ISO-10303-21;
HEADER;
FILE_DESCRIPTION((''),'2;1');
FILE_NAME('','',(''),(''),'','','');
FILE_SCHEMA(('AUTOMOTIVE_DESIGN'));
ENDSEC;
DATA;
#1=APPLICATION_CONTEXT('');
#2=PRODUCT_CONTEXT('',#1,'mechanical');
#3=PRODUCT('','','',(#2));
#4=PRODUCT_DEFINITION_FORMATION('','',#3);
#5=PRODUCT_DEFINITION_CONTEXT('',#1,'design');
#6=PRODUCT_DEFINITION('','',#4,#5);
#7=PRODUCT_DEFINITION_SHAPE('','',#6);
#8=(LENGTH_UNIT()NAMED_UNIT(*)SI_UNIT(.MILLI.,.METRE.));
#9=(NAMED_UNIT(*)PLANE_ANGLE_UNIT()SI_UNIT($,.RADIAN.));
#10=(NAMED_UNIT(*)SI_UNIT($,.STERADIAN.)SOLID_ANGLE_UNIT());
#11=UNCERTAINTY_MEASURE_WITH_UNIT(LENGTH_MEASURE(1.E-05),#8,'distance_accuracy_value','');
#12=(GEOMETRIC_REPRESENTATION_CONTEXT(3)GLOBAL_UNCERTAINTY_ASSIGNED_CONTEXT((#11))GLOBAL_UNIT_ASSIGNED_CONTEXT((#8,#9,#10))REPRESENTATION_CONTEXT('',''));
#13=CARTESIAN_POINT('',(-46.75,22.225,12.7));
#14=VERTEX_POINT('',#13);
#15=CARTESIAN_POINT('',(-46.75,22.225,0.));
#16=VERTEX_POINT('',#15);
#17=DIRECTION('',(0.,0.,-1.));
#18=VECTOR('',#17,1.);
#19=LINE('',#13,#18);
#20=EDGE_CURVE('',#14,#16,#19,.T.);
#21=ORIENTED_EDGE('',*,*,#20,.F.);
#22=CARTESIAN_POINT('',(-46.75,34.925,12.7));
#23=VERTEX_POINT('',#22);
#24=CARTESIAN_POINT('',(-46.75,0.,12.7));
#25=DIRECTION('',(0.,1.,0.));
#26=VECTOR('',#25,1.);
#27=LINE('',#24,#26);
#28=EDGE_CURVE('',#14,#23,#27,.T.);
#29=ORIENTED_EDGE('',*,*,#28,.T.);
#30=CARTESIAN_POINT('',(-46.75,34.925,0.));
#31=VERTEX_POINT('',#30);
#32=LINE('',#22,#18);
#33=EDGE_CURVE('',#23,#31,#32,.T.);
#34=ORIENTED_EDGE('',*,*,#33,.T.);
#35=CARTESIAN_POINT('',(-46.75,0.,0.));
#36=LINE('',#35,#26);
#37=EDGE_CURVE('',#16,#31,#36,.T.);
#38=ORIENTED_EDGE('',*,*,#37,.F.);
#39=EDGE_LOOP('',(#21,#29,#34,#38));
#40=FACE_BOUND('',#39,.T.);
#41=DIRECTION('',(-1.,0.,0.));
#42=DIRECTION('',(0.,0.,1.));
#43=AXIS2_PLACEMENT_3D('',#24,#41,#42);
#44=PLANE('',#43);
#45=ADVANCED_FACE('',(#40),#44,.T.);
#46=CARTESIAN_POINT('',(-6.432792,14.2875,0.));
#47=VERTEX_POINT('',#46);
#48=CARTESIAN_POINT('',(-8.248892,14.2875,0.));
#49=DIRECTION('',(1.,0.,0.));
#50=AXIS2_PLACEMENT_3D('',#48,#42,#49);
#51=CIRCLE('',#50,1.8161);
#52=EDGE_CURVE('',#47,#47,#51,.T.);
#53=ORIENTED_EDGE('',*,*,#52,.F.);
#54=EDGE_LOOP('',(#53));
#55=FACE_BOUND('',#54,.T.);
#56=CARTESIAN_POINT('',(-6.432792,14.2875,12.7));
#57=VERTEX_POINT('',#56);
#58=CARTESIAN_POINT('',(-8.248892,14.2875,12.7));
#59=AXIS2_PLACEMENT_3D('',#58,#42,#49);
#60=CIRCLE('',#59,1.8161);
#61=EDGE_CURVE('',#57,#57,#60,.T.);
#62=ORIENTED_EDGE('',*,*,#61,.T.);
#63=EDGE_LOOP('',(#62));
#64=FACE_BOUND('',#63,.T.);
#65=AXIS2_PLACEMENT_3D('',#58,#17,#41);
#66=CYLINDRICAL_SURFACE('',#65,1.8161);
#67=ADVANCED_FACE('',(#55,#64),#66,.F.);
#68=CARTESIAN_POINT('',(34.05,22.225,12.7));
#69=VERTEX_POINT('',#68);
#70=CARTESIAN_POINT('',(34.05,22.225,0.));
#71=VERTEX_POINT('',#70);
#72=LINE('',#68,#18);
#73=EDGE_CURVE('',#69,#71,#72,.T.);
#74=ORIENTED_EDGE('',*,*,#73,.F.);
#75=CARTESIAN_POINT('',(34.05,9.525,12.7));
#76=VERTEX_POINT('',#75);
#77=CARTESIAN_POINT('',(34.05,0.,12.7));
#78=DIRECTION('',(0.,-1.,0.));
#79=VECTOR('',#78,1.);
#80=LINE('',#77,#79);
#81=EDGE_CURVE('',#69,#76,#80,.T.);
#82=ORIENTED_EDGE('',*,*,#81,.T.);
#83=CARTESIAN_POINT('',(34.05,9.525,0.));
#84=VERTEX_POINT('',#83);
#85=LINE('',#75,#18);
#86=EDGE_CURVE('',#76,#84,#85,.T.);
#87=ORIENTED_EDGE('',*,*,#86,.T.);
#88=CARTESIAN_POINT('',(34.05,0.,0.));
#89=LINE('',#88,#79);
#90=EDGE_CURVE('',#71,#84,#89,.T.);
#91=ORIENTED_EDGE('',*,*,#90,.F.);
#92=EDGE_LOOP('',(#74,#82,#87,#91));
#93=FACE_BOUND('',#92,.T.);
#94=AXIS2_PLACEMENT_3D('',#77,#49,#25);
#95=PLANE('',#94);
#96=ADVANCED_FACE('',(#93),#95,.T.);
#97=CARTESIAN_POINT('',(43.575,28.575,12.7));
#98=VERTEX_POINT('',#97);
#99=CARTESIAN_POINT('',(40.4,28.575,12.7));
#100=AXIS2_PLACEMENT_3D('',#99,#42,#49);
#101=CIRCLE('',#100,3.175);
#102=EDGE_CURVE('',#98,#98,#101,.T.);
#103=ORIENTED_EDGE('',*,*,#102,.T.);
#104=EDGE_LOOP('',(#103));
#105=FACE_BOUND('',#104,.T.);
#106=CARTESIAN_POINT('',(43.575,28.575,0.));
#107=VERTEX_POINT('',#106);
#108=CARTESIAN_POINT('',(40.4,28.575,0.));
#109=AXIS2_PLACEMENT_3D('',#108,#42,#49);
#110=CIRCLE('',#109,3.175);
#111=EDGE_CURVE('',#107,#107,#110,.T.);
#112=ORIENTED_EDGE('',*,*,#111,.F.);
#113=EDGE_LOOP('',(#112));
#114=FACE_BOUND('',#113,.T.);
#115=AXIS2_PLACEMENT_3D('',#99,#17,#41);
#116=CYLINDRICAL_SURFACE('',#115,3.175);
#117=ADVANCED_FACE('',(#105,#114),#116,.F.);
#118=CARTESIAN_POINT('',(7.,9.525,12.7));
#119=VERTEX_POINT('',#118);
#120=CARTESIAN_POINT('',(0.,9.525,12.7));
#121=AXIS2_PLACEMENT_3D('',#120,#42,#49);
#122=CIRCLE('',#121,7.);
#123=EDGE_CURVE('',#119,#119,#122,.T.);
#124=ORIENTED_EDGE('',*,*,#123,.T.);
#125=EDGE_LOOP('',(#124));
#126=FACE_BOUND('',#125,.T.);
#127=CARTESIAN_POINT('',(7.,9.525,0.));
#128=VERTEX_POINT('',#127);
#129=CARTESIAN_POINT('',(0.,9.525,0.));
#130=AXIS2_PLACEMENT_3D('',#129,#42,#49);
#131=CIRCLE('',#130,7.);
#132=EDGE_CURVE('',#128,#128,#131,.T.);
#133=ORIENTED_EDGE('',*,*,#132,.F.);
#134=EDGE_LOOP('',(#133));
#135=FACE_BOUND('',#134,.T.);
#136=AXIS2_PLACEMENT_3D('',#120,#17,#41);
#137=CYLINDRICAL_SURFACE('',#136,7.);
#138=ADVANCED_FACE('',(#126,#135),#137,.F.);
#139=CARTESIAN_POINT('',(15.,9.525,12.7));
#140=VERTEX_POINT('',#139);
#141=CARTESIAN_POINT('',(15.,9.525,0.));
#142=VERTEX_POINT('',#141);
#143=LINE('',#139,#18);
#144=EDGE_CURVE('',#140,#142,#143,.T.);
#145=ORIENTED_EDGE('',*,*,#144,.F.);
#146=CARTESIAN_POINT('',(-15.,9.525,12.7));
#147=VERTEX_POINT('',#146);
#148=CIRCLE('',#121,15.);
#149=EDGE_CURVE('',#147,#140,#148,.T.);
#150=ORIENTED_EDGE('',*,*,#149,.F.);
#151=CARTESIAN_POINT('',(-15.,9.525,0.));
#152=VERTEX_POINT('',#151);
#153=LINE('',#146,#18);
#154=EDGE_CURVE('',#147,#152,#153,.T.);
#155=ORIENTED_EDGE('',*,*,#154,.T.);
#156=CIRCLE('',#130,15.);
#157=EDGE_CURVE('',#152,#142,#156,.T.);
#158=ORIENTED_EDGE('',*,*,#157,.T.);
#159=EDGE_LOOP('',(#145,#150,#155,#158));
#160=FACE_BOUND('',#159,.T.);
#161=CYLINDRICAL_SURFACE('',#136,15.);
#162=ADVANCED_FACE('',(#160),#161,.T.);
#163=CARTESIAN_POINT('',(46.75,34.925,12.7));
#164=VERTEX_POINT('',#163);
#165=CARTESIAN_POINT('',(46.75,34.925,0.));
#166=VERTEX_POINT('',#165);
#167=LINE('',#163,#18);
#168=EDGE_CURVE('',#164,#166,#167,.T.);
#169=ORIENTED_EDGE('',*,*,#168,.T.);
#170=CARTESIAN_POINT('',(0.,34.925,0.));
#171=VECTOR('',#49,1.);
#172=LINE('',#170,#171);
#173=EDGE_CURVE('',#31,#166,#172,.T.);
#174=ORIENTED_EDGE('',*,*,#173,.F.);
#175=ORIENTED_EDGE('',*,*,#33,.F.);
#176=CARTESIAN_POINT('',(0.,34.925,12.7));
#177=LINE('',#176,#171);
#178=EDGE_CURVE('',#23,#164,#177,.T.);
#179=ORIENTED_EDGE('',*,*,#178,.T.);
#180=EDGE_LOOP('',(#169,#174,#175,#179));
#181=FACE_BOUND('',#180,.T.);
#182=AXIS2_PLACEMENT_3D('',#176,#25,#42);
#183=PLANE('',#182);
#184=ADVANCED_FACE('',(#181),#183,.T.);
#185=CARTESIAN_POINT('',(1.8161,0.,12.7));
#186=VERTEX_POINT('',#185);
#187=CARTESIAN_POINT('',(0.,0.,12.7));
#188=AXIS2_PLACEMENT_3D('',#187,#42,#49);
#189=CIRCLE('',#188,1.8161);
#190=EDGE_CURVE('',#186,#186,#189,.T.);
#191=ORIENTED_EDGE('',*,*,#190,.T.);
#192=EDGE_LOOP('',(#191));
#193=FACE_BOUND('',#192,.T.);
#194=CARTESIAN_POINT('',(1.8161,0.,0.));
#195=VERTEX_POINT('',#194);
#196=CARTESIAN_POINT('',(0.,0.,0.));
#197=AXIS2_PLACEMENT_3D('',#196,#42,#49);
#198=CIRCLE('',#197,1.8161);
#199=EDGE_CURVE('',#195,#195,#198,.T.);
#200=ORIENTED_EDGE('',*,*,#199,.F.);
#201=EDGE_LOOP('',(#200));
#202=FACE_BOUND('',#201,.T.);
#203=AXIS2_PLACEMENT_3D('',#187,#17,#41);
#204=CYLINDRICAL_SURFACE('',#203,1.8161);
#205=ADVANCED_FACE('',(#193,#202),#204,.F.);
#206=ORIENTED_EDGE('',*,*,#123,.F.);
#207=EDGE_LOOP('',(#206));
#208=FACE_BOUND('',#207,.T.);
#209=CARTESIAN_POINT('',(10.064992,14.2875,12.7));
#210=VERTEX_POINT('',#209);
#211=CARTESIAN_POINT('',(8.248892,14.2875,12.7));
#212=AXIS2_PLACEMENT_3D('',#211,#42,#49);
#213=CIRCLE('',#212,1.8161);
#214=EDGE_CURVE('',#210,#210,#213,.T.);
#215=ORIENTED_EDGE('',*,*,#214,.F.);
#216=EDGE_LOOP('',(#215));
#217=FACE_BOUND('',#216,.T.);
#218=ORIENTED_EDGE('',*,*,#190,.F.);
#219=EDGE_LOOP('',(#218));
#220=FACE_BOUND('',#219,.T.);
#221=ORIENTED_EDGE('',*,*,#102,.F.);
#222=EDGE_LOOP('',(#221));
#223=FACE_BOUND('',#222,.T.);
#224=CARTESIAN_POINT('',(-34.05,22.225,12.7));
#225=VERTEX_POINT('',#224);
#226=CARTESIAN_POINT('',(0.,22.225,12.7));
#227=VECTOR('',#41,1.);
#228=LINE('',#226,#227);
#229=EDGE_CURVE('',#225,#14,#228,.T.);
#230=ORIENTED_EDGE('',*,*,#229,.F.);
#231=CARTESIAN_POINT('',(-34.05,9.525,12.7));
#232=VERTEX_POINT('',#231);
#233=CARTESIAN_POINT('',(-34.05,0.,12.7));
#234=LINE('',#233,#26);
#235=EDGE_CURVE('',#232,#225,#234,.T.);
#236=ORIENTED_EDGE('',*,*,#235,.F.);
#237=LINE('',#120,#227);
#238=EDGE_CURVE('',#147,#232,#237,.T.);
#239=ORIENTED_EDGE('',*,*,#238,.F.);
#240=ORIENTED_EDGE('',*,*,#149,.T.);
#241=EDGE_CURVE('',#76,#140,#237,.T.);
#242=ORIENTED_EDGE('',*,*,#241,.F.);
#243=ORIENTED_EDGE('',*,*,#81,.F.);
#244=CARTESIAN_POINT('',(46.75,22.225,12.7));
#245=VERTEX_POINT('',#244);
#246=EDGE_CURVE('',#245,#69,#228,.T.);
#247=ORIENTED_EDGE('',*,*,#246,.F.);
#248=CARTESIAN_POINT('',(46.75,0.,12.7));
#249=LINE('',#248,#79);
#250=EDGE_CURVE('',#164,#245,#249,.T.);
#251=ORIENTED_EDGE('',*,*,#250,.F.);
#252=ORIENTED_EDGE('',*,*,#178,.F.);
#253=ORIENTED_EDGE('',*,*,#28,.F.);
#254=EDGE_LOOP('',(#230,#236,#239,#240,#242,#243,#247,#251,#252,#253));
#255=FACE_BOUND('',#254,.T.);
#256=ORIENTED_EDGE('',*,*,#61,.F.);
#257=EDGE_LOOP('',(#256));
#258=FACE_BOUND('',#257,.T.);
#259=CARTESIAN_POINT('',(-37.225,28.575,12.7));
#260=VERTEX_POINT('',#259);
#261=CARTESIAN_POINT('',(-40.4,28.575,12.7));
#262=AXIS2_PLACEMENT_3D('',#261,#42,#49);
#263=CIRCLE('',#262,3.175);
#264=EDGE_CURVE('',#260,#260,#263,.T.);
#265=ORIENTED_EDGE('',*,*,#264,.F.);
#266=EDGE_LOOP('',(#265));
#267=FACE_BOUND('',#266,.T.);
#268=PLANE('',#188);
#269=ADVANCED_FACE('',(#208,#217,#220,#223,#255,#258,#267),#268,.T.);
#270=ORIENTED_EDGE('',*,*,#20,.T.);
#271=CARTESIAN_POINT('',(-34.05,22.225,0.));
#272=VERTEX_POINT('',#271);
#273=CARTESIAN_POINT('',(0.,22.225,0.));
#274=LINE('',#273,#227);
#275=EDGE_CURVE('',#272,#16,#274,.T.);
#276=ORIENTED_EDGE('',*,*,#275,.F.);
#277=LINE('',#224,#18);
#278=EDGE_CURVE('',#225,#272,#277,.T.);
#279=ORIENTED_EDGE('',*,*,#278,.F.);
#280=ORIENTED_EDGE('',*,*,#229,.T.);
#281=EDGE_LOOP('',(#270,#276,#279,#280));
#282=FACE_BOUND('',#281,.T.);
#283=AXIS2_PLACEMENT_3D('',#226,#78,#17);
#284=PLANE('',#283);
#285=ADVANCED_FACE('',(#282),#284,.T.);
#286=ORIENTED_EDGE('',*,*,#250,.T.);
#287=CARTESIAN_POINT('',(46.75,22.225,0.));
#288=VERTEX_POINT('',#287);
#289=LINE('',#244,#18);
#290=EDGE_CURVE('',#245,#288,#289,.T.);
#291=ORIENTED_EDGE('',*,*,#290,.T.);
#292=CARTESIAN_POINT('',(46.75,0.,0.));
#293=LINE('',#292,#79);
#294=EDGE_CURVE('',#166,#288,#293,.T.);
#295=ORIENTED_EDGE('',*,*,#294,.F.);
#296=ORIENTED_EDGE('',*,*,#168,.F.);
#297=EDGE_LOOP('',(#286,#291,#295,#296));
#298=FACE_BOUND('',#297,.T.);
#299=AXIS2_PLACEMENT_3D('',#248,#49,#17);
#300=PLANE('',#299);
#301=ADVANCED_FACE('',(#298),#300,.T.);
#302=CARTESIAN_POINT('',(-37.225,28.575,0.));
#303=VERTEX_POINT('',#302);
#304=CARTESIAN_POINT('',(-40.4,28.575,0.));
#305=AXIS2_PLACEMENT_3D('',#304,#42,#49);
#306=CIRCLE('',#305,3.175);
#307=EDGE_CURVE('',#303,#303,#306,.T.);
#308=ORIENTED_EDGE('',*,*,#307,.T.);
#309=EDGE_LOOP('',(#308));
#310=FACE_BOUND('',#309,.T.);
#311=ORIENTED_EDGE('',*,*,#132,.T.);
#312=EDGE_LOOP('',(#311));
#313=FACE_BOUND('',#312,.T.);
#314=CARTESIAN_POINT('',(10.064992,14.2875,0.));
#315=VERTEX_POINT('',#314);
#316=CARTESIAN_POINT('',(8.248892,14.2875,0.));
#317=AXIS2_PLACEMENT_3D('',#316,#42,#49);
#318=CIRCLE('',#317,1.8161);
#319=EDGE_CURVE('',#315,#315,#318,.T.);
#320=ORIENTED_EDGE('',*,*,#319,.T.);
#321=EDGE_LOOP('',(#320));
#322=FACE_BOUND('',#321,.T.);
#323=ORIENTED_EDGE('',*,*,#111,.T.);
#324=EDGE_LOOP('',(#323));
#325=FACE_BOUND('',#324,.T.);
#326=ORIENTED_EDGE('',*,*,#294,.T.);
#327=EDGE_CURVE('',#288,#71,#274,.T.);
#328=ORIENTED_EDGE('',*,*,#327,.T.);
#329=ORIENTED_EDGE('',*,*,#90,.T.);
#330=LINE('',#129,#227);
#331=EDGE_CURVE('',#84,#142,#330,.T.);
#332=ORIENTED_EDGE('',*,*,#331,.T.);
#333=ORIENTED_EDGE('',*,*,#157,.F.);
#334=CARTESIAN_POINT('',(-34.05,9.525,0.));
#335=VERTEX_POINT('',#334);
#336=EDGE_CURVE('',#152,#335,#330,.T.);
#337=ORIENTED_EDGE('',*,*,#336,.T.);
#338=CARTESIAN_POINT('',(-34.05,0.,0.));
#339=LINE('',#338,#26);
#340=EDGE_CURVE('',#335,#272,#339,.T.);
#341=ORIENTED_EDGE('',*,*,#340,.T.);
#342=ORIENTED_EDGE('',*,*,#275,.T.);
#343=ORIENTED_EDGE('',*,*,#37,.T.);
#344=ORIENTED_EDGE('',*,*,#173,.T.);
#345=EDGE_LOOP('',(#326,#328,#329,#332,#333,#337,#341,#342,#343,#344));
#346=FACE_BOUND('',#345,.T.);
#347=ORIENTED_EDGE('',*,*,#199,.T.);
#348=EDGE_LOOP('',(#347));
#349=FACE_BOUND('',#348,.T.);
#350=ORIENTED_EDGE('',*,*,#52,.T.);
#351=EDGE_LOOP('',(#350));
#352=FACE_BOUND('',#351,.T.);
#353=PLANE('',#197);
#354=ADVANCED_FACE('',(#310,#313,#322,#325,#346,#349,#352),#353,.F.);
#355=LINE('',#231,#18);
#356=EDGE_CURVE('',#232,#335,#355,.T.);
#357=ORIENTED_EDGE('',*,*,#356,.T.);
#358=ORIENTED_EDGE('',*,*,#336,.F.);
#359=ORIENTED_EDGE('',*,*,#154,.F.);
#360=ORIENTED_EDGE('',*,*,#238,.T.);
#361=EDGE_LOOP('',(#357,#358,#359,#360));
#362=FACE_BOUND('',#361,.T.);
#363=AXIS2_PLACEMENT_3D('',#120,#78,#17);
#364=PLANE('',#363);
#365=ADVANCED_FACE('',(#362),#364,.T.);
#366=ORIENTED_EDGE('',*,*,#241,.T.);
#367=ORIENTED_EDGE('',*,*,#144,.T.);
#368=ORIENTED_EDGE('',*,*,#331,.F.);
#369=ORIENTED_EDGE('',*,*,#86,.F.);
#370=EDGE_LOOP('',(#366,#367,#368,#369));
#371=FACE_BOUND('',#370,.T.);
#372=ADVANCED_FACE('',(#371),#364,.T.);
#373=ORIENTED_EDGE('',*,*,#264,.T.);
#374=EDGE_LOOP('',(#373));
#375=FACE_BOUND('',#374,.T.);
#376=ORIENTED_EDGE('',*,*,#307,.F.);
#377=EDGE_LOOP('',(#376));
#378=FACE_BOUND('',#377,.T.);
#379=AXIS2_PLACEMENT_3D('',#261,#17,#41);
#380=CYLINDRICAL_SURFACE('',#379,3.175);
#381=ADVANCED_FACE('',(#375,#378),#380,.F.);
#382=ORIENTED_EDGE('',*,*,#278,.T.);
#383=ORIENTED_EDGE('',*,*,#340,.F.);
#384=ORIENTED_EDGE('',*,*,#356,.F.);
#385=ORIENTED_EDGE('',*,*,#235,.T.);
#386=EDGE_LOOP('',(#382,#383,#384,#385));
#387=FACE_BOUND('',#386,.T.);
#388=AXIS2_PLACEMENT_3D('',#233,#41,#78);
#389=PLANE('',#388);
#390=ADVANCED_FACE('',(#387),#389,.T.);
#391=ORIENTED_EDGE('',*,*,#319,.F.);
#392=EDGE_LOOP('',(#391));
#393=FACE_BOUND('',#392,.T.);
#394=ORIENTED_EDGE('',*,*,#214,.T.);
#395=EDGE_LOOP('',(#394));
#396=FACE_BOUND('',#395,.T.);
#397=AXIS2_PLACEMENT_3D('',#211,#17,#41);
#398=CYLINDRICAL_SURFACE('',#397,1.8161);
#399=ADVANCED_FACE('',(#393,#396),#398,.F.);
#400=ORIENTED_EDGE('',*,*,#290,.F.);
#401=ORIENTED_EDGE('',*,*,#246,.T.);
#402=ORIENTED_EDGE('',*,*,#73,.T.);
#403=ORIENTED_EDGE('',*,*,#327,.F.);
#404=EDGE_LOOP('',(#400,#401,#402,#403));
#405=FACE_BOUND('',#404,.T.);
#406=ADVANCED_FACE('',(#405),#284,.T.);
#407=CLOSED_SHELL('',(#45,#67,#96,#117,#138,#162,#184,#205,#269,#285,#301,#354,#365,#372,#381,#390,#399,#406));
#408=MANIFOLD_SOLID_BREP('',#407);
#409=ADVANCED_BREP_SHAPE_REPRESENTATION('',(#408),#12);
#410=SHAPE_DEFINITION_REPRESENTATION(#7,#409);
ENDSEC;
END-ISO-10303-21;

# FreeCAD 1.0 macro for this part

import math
import FreeCAD as App
import Part
import Sketcher
Q = App.Units.Quantity

doc = App.newDocument("Part")
body = doc.addObject("PartDesign::Body", "Body")

# Sketch on XY plane
sketch1 = doc.addObject("Sketcher::SketchObject", "Sketch")
body.addObject(sketch1)
sketch1.AttachmentSupport = (doc.XY_Plane, [""])
sketch1.MapMode = "FlatFace"
sketch1.addGeometry([
    Part.LineSegment(App.Vector(-34.05, 9.525, 0), App.Vector(-15, 9.525, 0)),  # 0
    Part.ArcOfCircle(Part.Circle(App.Vector(0, 9.525, 0), App.Vector(0, 0, 1), 15), math.radians(180), math.radians(360)),  # 1
    Part.LineSegment(App.Vector(15, 9.525, 0), App.Vector(34.05, 9.525, 0)),  # 2
    Part.LineSegment(App.Vector(34.05, 9.525, 0), App.Vector(34.05, 22.225, 0)),  # 3
    Part.LineSegment(App.Vector(34.05, 22.225, 0), App.Vector(46.75, 22.225, 0)),  # 4
    Part.LineSegment(App.Vector(46.75, 22.225, 0), App.Vector(46.75, 34.925, 0)),  # 5
    Part.LineSegment(App.Vector(46.75, 34.925, 0), App.Vector(-46.75, 34.925, 0)),  # 6
    Part.LineSegment(App.Vector(-46.75, 34.925, 0), App.Vector(-46.75, 22.225, 0)),  # 7
    Part.LineSegment(App.Vector(-46.75, 22.225, 0), App.Vector(-34.05, 22.225, 0)),  # 8
    Part.LineSegment(App.Vector(-34.05, 22.225, 0), App.Vector(-34.05, 9.525, 0)),  # 9
    Part.Circle(App.Vector(-8.248892, 14.2875, 0), App.Vector(0, 0, 1), 1.8161),  # 10
    Part.Circle(App.Vector(0, 0, 0), App.Vector(0, 0, 1), 1.8161),  # 11
    Part.Circle(App.Vector(0, 9.525, 0), App.Vector(0, 0, 1), 7),  # 12
    Part.Circle(App.Vector(8.248892, 14.2875, 0), App.Vector(0, 0, 1), 1.8161),  # 13
    Part.Circle(App.Vector(-40.4, 28.575, 0), App.Vector(0, 0, 1), 3.175),  # 14
    Part.Circle(App.Vector(40.4, 28.575, 0), App.Vector(0, 0, 1), 3.175),  # 15
], False)
sketch1.addConstraint([
    Sketcher.Constraint("Coincident", 0, 2, 1, 1),
    Sketcher.Constraint("Coincident", 1, 2, 2, 1),
    Sketcher.Constraint("Coincident", 2, 2, 3, 1),
    Sketcher.Constraint("Coincident", 3, 2, 4, 1),
    Sketcher.Constraint("Coincident", 4, 2, 5, 1),
    Sketcher.Constraint("Coincident", 5, 2, 6, 1),
    Sketcher.Constraint("Coincident", 6, 2, 7, 1),
    Sketcher.Constraint("Coincident", 7, 2, 8, 1),
    Sketcher.Constraint("Coincident", 8, 2, 9, 1),
    Sketcher.Constraint("Coincident", 9, 2, 0, 1),
    Sketcher.Constraint("Horizontal", 0),
    Sketcher.Constraint("Horizontal", 2),
    Sketcher.Constraint("Vertical", 3),
    Sketcher.Constraint("Horizontal", 4),
    Sketcher.Constraint("Vertical", 5),
    Sketcher.Constraint("Horizontal", 6),
    Sketcher.Constraint("Vertical", 7),
    Sketcher.Constraint("Horizontal", 8),
    Sketcher.Constraint("Vertical", 9),
    Sketcher.Constraint("Coincident", 11, 3, -1, 1),
    Sketcher.Constraint("Coincident", 12, 3, 1, 3),
    Sketcher.Constraint("Equal", 10, 11),
    Sketcher.Constraint("Equal", 11, 13),
    Sketcher.Constraint("Equal", 14, 15),
    Sketcher.Constraint("Symmetric", 10, 3, 13, 3, -2),
    Sketcher.Constraint("Symmetric", 14, 3, 15, 3, -2),
    Sketcher.Constraint("Symmetric", 0, 2, 1, 2, -2),
    Sketcher.Constraint("Symmetric", 4, 2, 7, 2, -2),
    Sketcher.Constraint("Horizontal", 12, 3, 0, 2),
    Sketcher.Constraint("Equal", 0, 2),
    Sketcher.Constraint("Equal", 8, 3),
    Sketcher.Constraint("Equal", 3, 5),
    Sketcher.Constraint("Diameter", 14, Q("0.25 in")),
    Sketcher.Constraint("Diameter", 10, Q("0.143 in")),
    Sketcher.Constraint("DistanceX", 4, 1, 4, 2, Q("0.5 in")),
    Sketcher.Constraint("DistanceX", 0, 1, 0, 2, Q("0.75 in")),
    Sketcher.Constraint("Diameter", 12, 14.0),
    Sketcher.Constraint("Radius", 1, 15.0),
    Sketcher.Constraint("DistanceY", 1, 3, 14, 3, Q("0.75 in")),
    Sketcher.Constraint("DistanceX", 2, 2, 15, 3, Q("0.25 in")),
    Sketcher.Constraint("DistanceY", -1, 1, 1, 3, Q("0.375 in")),
    Sketcher.Constraint("DistanceY", -1, 1, 10, 3, Q("0.5625 in")),
    Sketcher.Constraint("DistanceX", 10, 3, -1, 1, 8.248892),
])
pad1 = doc.addObject("PartDesign::Pad", "Pad")
body.addObject(pad1)
pad1.Profile = sketch1
pad1.Length = Q("0.5 in")

doc.recompute()
